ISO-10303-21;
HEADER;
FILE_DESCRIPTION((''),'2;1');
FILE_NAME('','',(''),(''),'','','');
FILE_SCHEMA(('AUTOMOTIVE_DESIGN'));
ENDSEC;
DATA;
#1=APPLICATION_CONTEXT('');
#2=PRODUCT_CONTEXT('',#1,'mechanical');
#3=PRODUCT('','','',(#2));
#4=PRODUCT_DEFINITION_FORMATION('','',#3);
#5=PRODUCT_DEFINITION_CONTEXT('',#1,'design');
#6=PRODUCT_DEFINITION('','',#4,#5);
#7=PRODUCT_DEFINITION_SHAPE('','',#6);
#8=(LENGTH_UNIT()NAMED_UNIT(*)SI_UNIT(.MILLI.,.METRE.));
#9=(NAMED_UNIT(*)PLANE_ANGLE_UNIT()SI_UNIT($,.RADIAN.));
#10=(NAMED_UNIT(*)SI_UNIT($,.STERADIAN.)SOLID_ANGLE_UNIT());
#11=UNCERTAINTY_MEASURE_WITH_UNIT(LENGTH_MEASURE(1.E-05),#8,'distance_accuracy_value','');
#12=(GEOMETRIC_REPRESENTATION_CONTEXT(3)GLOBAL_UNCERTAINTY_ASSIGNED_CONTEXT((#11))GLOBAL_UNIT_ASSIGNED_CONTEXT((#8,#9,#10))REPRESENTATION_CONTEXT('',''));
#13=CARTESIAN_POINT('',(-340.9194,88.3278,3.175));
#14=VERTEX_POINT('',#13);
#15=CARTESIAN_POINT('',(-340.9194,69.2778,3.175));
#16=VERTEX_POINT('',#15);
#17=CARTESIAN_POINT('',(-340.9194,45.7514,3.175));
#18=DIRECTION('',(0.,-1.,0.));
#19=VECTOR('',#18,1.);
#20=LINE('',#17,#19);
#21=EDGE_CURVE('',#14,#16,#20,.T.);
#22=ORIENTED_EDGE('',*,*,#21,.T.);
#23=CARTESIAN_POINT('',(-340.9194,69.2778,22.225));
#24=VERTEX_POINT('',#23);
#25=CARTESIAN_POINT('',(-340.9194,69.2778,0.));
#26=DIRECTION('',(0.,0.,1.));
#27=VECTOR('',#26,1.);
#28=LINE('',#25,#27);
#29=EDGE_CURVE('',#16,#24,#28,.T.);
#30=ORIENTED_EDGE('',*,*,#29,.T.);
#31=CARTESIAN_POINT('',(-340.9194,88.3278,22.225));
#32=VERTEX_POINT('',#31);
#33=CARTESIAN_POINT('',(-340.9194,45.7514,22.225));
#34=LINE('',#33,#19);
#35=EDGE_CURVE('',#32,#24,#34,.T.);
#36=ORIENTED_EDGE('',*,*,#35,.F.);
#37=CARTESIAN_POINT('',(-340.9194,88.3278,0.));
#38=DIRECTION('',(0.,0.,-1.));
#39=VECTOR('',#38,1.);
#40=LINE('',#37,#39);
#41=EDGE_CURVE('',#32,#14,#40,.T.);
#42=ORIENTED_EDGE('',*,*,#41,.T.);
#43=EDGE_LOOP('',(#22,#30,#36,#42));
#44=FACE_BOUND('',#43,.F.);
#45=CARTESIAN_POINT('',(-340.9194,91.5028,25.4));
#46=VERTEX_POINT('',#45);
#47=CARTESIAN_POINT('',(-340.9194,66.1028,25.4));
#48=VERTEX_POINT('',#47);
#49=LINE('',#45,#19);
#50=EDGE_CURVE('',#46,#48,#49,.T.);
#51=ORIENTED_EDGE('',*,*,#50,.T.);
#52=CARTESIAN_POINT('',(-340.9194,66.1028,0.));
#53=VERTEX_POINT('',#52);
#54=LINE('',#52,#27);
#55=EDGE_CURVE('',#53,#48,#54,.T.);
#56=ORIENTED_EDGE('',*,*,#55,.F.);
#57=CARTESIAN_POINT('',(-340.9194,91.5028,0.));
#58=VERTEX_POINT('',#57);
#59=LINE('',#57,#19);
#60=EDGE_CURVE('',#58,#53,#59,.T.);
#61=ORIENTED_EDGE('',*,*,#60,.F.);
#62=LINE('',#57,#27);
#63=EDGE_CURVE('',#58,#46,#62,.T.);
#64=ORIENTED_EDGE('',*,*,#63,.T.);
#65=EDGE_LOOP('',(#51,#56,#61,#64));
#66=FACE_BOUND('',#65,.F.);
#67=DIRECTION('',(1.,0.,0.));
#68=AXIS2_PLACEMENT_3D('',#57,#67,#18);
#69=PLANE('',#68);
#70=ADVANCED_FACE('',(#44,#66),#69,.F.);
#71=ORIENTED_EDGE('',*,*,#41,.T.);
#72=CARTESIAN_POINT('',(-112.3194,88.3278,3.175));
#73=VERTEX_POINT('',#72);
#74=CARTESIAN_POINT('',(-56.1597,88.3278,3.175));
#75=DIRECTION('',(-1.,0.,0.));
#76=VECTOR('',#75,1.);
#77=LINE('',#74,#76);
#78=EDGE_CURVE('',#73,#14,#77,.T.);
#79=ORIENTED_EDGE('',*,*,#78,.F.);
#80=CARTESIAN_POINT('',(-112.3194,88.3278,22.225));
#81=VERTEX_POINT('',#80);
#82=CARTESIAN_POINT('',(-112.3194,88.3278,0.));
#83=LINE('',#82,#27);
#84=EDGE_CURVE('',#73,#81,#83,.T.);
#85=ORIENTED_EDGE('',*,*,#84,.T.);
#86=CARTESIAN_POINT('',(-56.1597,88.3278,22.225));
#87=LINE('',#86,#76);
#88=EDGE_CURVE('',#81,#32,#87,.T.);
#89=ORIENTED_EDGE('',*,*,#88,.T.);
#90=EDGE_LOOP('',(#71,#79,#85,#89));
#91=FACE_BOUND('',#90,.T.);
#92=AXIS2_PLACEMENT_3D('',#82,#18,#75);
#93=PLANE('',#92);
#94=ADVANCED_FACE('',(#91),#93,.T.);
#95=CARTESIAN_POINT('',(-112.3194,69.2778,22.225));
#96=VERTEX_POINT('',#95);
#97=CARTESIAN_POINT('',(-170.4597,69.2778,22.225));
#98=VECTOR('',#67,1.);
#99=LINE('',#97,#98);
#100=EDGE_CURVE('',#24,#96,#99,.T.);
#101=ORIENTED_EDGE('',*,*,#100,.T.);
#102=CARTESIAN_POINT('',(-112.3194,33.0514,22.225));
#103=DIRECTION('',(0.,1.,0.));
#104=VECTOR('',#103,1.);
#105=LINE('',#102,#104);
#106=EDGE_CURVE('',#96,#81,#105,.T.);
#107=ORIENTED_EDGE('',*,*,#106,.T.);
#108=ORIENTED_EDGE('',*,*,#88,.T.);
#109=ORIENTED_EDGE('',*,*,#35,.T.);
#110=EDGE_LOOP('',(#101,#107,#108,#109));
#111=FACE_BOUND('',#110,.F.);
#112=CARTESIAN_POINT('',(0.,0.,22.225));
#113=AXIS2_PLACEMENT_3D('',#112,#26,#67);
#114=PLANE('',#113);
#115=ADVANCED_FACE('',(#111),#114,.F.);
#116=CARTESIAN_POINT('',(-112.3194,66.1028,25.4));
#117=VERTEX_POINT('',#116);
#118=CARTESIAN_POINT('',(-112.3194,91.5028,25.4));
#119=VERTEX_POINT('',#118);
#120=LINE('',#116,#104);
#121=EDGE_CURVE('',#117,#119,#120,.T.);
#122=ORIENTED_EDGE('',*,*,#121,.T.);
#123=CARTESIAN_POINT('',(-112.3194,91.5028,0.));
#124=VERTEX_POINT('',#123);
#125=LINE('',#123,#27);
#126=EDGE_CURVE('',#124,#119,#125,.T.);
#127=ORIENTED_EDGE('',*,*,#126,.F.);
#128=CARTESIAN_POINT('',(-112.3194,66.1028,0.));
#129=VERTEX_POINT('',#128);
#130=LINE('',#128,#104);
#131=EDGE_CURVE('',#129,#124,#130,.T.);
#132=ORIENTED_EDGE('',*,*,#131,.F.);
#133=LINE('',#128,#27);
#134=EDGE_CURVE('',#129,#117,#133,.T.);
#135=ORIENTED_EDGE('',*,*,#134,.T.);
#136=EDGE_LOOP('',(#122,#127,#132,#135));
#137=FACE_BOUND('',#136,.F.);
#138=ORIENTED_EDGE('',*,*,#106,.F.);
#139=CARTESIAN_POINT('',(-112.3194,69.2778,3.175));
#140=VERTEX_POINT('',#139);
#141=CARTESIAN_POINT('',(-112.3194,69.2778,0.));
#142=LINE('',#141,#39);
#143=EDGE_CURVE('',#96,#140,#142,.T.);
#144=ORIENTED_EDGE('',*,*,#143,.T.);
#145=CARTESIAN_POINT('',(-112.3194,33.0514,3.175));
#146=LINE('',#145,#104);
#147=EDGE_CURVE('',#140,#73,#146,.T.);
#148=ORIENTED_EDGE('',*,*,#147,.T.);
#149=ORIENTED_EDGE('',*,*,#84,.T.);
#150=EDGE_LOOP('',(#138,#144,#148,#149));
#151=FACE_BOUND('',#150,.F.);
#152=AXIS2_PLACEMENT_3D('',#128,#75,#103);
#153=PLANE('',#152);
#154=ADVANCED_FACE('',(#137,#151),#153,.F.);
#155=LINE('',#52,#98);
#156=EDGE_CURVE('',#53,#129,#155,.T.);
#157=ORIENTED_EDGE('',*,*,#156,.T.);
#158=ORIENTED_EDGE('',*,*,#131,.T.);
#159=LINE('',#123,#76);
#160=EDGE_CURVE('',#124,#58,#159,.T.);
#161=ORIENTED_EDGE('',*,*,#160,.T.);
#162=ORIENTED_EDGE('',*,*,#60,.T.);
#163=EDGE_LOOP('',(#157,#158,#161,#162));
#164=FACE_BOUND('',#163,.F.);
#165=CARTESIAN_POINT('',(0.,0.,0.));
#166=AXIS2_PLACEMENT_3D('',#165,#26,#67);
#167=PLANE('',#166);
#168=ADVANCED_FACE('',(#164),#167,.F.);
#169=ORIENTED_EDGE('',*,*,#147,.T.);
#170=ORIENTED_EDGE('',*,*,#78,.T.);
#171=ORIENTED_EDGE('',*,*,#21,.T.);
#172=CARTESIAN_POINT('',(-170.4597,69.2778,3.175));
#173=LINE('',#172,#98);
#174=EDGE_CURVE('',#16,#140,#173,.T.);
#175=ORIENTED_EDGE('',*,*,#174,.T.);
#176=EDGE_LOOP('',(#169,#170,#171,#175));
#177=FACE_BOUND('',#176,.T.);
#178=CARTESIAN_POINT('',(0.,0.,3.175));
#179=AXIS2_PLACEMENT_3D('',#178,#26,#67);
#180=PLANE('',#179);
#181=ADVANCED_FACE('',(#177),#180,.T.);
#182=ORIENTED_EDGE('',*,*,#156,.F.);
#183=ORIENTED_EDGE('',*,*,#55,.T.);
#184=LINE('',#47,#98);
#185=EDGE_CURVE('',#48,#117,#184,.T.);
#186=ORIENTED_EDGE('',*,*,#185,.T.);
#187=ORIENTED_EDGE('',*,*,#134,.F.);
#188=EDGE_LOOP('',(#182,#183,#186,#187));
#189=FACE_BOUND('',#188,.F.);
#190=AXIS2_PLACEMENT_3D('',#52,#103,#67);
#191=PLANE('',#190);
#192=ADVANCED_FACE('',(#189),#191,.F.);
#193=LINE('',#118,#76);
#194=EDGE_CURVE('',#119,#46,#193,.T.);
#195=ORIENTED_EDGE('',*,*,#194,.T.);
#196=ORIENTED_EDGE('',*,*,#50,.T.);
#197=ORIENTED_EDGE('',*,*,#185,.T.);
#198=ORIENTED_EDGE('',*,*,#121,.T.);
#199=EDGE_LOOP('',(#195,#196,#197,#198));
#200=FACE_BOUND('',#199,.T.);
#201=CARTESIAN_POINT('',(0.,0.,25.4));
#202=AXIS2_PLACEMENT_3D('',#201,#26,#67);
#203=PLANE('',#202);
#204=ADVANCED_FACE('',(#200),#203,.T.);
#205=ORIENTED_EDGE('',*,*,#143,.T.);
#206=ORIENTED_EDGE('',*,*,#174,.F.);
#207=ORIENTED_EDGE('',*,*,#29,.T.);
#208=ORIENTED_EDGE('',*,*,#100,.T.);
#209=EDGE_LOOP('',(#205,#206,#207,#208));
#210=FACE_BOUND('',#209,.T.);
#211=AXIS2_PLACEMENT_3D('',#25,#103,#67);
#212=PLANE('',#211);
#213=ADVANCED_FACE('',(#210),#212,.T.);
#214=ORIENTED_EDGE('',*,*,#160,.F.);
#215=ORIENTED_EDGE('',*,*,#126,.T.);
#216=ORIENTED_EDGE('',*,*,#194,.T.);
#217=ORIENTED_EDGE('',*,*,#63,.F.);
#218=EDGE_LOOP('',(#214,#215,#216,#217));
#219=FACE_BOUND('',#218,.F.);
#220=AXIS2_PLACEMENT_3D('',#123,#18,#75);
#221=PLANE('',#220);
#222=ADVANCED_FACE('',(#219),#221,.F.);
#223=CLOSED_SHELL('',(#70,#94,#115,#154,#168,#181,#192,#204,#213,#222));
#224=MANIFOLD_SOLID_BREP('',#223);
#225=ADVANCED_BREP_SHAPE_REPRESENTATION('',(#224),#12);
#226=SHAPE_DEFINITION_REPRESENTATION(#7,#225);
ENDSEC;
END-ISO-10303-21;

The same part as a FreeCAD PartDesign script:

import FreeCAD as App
import Part
import Sketcher
from FreeCAD import Vector
Q = App.Units.Quantity


def faces_at(feature, points):
    """Names of the faces that lie closest to the given points."""
    faces = feature.Shape.Faces
    near = lambda p: min(range(len(faces)), key=lambda i: faces[i].distToShape(Part.Vertex(*p))[0])
    return sorted({f"Face{near(p) + 1}" for p in points})

doc = App.newDocument("Part")
body = doc.addObject("PartDesign::Body", "Body")

# Sketch on XY plane
sketch1 = body.newObject("Sketcher::SketchObject", "Sketch")
sketch1.AttachmentSupport = (doc.getObject("XY_Plane"), [""])
sketch1.MapMode = "FlatFace"
sketch1.addGeometry([
    Part.LineSegment(Vector(-112.3194, 66.1028, 0), Vector(-112.3194, 91.5028, 0)),
    Part.LineSegment(Vector(-112.3194, 91.5028, 0), Vector(-340.9194, 91.5028, 0)),
    Part.LineSegment(Vector(-340.9194, 91.5028, 0), Vector(-340.9194, 66.1028, 0)),
    Part.LineSegment(Vector(-340.9194, 66.1028, 0), Vector(-112.3194, 66.1028, 0)),
], False)
sketch1.addConstraint([
    Sketcher.Constraint("Coincident", 0, 2, 1, 1),
    Sketcher.Constraint("Coincident", 1, 2, 2, 1),
    Sketcher.Constraint("Coincident", 2, 2, 3, 1),
    Sketcher.Constraint("Coincident", 3, 2, 0, 1),
    Sketcher.Constraint("Vertical", 0),
    Sketcher.Constraint("Horizontal", 1),
    Sketcher.Constraint("Vertical", 2),
    Sketcher.Constraint("Horizontal", 3),
    Sketcher.Constraint("DistanceX", 1, 2, 1, 1, Q("9 in")),
    Sketcher.Constraint("DistanceY", 0, 1, 0, 2, Q("1 in")),
    Sketcher.Constraint("DistanceX", 0, 2, -1, 1, 112.3194),
    Sketcher.Constraint("DistanceY", -1, 1, 0, 2, 91.5028),
])
pad1 = body.newObject("PartDesign::Pad", "Pad")
pad1.Profile = sketch1
pad1.Length = Q("1 in")
doc.recompute()

thickness = body.newObject("PartDesign::Thickness", "Thickness")
thickness.Base = (pad1, faces_at(pad1, [(-112.319, 74.57, 8.467), (-340.919, 83.036, 8.467)]))
thickness.Value = Q("0.125 in")
thickness.Reversed = True
thickness.Join = "Intersection"

doc.recompute()
